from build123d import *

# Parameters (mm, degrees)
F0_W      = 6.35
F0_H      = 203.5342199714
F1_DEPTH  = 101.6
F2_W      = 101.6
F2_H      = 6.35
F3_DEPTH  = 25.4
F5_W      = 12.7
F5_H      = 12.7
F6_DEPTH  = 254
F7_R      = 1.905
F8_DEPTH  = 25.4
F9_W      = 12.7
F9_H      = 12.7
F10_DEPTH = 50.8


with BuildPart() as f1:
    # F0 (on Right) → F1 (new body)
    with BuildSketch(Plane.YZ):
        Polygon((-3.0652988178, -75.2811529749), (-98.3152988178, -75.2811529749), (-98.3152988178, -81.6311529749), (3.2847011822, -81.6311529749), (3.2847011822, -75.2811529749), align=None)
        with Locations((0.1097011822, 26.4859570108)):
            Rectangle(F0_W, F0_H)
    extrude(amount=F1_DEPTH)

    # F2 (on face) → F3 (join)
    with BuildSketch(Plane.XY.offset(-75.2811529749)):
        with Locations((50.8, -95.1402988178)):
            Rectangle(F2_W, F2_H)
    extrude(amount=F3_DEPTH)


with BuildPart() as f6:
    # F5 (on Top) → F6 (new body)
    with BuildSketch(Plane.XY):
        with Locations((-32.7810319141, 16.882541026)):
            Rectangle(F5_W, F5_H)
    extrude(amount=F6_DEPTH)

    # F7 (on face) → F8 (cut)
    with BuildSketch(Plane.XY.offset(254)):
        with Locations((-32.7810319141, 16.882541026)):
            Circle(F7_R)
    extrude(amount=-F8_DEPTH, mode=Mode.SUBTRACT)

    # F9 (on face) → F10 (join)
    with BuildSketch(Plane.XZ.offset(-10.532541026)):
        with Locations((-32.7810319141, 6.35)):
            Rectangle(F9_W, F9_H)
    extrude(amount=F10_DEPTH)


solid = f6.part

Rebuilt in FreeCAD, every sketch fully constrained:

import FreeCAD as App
import Part
import Sketcher
from FreeCAD import Vector
Q = App.Units.Quantity

doc = App.newDocument("Part")
body = doc.addObject("PartDesign::Body", "Body")

# Sketch on YZ plane
sketch1 = body.newObject("Sketcher::SketchObject", "Sketch")
sketch1.AttachmentSupport = (doc.getObject("YZ_Plane"), [""])
sketch1.MapMode = "FlatFace"
sketch1.addGeometry(Part.LineSegment(Vector(-98, -75, 0), Vector(-98, -82, 0)), False)
sketch1.addGeometry(Part.LineSegment(Vector(-98, -82, 0), Vector(3, -82, 0)), False)
sketch1.addGeometry(Part.LineSegment(Vector(3, -82, 0), Vector(3, 128, 0)), False)
sketch1.addGeometry(Part.LineSegment(Vector(3, 128, 0), Vector(-3, 128, 0)), False)
sketch1.addGeometry(Part.LineSegment(Vector(-3, 128, 0), Vector(-3, -75, 0)), False)
sketch1.addGeometry(Part.LineSegment(Vector(-3, -75, 0), Vector(-98, -75, 0)), False)
sketch1.addConstraint(Sketcher.Constraint("Coincident", 0, 2, 1, 1))
sketch1.addConstraint(Sketcher.Constraint("Coincident", 1, 2, 2, 1))
sketch1.addConstraint(Sketcher.Constraint("Coincident", 2, 2, 3, 1))
sketch1.addConstraint(Sketcher.Constraint("Coincident", 3, 2, 4, 1))
sketch1.addConstraint(Sketcher.Constraint("Coincident", 4, 2, 5, 1))
sketch1.addConstraint(Sketcher.Constraint("Coincident", 5, 2, 0, 1))
sketch1.addConstraint(Sketcher.Constraint("Vertical", 0))
sketch1.addConstraint(Sketcher.Constraint("Horizontal", 1))
sketch1.addConstraint(Sketcher.Constraint("Vertical", 2))
sketch1.addConstraint(Sketcher.Constraint("Horizontal", 3))
sketch1.addConstraint(Sketcher.Constraint("Vertical", 4))
sketch1.addConstraint(Sketcher.Constraint("Horizontal", 5))
sketch1.addConstraint(Sketcher.Constraint("Equal", 3, 0))
sketch1.addConstraint(Sketcher.Constraint("DistanceX", 1, 1, 1, 2, Q("4 in")))
sketch1.addConstraint(Sketcher.Constraint("DistanceX", 3, 2, 3, 1, Q("0.25 in")))
sketch1.addConstraint(Sketcher.Constraint("DistanceY", 2, 1, 2, 2, 209.88422))
sketch1.addConstraint(Sketcher.Constraint("DistanceX", 0, 2, -1, 1, 98.315299))
sketch1.addConstraint(Sketcher.Constraint("DistanceY", 0, 2, -1, 1, 81.631153))
pad1 = body.newObject("PartDesign::Pad", "Pad")
pad1.Profile = sketch1
pad1.Length = Q("4 in")

# Sketch on XY plane
sketch2 = body.newObject("Sketcher::SketchObject", "Sketch001")
sketch2.AttachmentSupport = (doc.getObject("XY_Plane"), [""])
sketch2.MapMode = "FlatFace"
sketch2.AttachmentOffset = App.Placement(Vector(0, 0, -75.281153), App.Rotation())
sketch2.addGeometry(Part.LineSegment(Vector(0, -92, 0), Vector(0, -98, 0)), False)
sketch2.addGeometry(Part.LineSegment(Vector(0, -98, 0), Vector(102, -98, 0)), False)
sketch2.addGeometry(Part.LineSegment(Vector(102, -98, 0), Vector(102, -92, 0)), False)
sketch2.addGeometry(Part.LineSegment(Vector(102, -92, 0), Vector(0, -92, 0)), False)
sketch2.addConstraint(Sketcher.Constraint("Coincident", 0, 2, 1, 1))
sketch2.addConstraint(Sketcher.Constraint("Coincident", 1, 2, 2, 1))
sketch2.addConstraint(Sketcher.Constraint("Coincident", 2, 2, 3, 1))
sketch2.addConstraint(Sketcher.Constraint("Coincident", 3, 2, 0, 1))
sketch2.addConstraint(Sketcher.Constraint("Vertical", 0))
sketch2.addConstraint(Sketcher.Constraint("Horizontal", 1))
sketch2.addConstraint(Sketcher.Constraint("Vertical", 2))
sketch2.addConstraint(Sketcher.Constraint("Horizontal", 3))
sketch2.addConstraint(Sketcher.Constraint("PointOnObject", 0, 2, -2))
sketch2.addConstraint(Sketcher.Constraint("DistanceX", 1, 1, 1, 2, Q("4 in")))
sketch2.addConstraint(Sketcher.Constraint("DistanceY", 0, 2, 0, 1, Q("0.25 in")))
sketch2.addConstraint(Sketcher.Constraint("DistanceY", 0, 2, -1, 1, 98.315299))
pad2 = body.newObject("PartDesign::Pad", "Pad001")
pad2.Profile = sketch2
pad2.Length = Q("1 in")
body2 = doc.addObject("PartDesign::Body", "Body001")

# Sketch on XY plane
sketch3 = body2.newObject("Sketcher::SketchObject", "Sketch002")
sketch3.AttachmentSupport = (doc.getObject("XY_Plane001"), [""])
sketch3.MapMode = "FlatFace"
sketch3.addGeometry(Part.LineSegment(Vector(-39, 23, 0), Vector(-39, 11, 0)), False)
sketch3.addGeometry(Part.LineSegment(Vector(-39, 11, 0), Vector(-26, 11, 0)), False)
sketch3.addGeometry(Part.LineSegment(Vector(-26, 11, 0), Vector(-26, 23, 0)), False)
sketch3.addGeometry(Part.LineSegment(Vector(-26, 23, 0), Vector(-39, 23, 0)), False)
sketch3.addConstraint(Sketcher.Constraint("Coincident", 0, 2, 1, 1))
sketch3.addConstraint(Sketcher.Constraint("Coincident", 1, 2, 2, 1))
sketch3.addConstraint(Sketcher.Constraint("Coincident", 2, 2, 3, 1))
sketch3.addConstraint(Sketcher.Constraint("Coincident", 3, 2, 0, 1))
sketch3.addConstraint(Sketcher.Constraint("Vertical", 0))
sketch3.addConstraint(Sketcher.Constraint("Horizontal", 1))
sketch3.addConstraint(Sketcher.Constraint("Vertical", 2))
sketch3.addConstraint(Sketcher.Constraint("Horizontal", 3))
sketch3.addConstraint(Sketcher.Constraint("Equal", 3, 0))
sketch3.addConstraint(Sketcher.Constraint("DistanceX", 1, 1, 1, 2, Q("0.5 in")))
sketch3.addConstraint(Sketcher.Constraint("DistanceX", 0, 2, -1, 1, 39.131032))
sketch3.addConstraint(Sketcher.Constraint("DistanceY", -1, 1, 0, 2, 10.532541))
pad3 = body2.newObject("PartDesign::Pad", "Pad002")
pad3.Profile = sketch3
pad3.Length = Q("10 in")

# Sketch on XY plane
sketch4 = body2.newObject("Sketcher::SketchObject", "Sketch003")
sketch4.AttachmentSupport = (doc.getObject("XY_Plane001"), [""])
sketch4.MapMode = "FlatFace"
sketch4.AttachmentOffset = App.Placement(Vector(0, 0, 10 * 25.4), App.Rotation())
sketch4.addGeometry(Part.Circle(Vector(-32.8, 16.9, 0), Vector(0, 0, 1), 1.9), False)
sketch4.addConstraint(Sketcher.Constraint("Diameter", 0, Q("0.15 in")))
sketch4.addConstraint(Sketcher.Constraint("DistanceX", 0, 3, -1, 1, 32.781032))
sketch4.addConstraint(Sketcher.Constraint("DistanceY", -1, 1, 0, 3, 16.882541))
pocket1 = body2.newObject("PartDesign::Pocket", "Pocket")
pocket1.Profile = sketch4
pocket1.Length = Q("1 in")

# Sketch on XZ plane
sketch5 = body2.newObject("Sketcher::SketchObject", "Sketch004")
sketch5.AttachmentSupport = (doc.getObject("XZ_Plane001"), [""])
sketch5.MapMode = "FlatFace"
sketch5.AttachmentOffset = App.Placement(Vector(0, 0, -10.532541), App.Rotation())
sketch5.addGeometry(Part.LineSegment(Vector(-39, 13, 0), Vector(-39, 0, 0)), False)
sketch5.addGeometry(Part.LineSegment(Vector(-39, 0, 0), Vector(-26, 0, 0)), False)
sketch5.addGeometry(Part.LineSegment(Vector(-26, 0, 0), Vector(-26, 13, 0)), False)
sketch5.addGeometry(Part.LineSegment(Vector(-26, 13, 0), Vector(-39, 13, 0)), False)
sketch5.addConstraint(Sketcher.Constraint("Coincident", 0, 2, 1, 1))
sketch5.addConstraint(Sketcher.Constraint("Coincident", 1, 2, 2, 1))
sketch5.addConstraint(Sketcher.Constraint("Coincident", 2, 2, 3, 1))
sketch5.addConstraint(Sketcher.Constraint("Coincident", 3, 2, 0, 1))
sketch5.addConstraint(Sketcher.Constraint("Vertical", 0))
sketch5.addConstraint(Sketcher.Constraint("Horizontal", 1))
sketch5.addConstraint(Sketcher.Constraint("Vertical", 2))
sketch5.addConstraint(Sketcher.Constraint("Horizontal", 3))
sketch5.addConstraint(Sketcher.Constraint("PointOnObject", 0, 2, -1))
sketch5.addConstraint(Sketcher.Constraint("Equal", 3, 0))
sketch5.addConstraint(Sketcher.Constraint("DistanceX", 1, 1, 1, 2, Q("0.5 in")))
sketch5.addConstraint(Sketcher.Constraint("DistanceX", 0, 2, -1, 1, 39.131032))
pad4 = body2.newObject("PartDesign::Pad", "Pad003")
pad4.Profile = sketch5
pad4.Length = Q("2 in")
body.Visibility = False

doc.recompute()
